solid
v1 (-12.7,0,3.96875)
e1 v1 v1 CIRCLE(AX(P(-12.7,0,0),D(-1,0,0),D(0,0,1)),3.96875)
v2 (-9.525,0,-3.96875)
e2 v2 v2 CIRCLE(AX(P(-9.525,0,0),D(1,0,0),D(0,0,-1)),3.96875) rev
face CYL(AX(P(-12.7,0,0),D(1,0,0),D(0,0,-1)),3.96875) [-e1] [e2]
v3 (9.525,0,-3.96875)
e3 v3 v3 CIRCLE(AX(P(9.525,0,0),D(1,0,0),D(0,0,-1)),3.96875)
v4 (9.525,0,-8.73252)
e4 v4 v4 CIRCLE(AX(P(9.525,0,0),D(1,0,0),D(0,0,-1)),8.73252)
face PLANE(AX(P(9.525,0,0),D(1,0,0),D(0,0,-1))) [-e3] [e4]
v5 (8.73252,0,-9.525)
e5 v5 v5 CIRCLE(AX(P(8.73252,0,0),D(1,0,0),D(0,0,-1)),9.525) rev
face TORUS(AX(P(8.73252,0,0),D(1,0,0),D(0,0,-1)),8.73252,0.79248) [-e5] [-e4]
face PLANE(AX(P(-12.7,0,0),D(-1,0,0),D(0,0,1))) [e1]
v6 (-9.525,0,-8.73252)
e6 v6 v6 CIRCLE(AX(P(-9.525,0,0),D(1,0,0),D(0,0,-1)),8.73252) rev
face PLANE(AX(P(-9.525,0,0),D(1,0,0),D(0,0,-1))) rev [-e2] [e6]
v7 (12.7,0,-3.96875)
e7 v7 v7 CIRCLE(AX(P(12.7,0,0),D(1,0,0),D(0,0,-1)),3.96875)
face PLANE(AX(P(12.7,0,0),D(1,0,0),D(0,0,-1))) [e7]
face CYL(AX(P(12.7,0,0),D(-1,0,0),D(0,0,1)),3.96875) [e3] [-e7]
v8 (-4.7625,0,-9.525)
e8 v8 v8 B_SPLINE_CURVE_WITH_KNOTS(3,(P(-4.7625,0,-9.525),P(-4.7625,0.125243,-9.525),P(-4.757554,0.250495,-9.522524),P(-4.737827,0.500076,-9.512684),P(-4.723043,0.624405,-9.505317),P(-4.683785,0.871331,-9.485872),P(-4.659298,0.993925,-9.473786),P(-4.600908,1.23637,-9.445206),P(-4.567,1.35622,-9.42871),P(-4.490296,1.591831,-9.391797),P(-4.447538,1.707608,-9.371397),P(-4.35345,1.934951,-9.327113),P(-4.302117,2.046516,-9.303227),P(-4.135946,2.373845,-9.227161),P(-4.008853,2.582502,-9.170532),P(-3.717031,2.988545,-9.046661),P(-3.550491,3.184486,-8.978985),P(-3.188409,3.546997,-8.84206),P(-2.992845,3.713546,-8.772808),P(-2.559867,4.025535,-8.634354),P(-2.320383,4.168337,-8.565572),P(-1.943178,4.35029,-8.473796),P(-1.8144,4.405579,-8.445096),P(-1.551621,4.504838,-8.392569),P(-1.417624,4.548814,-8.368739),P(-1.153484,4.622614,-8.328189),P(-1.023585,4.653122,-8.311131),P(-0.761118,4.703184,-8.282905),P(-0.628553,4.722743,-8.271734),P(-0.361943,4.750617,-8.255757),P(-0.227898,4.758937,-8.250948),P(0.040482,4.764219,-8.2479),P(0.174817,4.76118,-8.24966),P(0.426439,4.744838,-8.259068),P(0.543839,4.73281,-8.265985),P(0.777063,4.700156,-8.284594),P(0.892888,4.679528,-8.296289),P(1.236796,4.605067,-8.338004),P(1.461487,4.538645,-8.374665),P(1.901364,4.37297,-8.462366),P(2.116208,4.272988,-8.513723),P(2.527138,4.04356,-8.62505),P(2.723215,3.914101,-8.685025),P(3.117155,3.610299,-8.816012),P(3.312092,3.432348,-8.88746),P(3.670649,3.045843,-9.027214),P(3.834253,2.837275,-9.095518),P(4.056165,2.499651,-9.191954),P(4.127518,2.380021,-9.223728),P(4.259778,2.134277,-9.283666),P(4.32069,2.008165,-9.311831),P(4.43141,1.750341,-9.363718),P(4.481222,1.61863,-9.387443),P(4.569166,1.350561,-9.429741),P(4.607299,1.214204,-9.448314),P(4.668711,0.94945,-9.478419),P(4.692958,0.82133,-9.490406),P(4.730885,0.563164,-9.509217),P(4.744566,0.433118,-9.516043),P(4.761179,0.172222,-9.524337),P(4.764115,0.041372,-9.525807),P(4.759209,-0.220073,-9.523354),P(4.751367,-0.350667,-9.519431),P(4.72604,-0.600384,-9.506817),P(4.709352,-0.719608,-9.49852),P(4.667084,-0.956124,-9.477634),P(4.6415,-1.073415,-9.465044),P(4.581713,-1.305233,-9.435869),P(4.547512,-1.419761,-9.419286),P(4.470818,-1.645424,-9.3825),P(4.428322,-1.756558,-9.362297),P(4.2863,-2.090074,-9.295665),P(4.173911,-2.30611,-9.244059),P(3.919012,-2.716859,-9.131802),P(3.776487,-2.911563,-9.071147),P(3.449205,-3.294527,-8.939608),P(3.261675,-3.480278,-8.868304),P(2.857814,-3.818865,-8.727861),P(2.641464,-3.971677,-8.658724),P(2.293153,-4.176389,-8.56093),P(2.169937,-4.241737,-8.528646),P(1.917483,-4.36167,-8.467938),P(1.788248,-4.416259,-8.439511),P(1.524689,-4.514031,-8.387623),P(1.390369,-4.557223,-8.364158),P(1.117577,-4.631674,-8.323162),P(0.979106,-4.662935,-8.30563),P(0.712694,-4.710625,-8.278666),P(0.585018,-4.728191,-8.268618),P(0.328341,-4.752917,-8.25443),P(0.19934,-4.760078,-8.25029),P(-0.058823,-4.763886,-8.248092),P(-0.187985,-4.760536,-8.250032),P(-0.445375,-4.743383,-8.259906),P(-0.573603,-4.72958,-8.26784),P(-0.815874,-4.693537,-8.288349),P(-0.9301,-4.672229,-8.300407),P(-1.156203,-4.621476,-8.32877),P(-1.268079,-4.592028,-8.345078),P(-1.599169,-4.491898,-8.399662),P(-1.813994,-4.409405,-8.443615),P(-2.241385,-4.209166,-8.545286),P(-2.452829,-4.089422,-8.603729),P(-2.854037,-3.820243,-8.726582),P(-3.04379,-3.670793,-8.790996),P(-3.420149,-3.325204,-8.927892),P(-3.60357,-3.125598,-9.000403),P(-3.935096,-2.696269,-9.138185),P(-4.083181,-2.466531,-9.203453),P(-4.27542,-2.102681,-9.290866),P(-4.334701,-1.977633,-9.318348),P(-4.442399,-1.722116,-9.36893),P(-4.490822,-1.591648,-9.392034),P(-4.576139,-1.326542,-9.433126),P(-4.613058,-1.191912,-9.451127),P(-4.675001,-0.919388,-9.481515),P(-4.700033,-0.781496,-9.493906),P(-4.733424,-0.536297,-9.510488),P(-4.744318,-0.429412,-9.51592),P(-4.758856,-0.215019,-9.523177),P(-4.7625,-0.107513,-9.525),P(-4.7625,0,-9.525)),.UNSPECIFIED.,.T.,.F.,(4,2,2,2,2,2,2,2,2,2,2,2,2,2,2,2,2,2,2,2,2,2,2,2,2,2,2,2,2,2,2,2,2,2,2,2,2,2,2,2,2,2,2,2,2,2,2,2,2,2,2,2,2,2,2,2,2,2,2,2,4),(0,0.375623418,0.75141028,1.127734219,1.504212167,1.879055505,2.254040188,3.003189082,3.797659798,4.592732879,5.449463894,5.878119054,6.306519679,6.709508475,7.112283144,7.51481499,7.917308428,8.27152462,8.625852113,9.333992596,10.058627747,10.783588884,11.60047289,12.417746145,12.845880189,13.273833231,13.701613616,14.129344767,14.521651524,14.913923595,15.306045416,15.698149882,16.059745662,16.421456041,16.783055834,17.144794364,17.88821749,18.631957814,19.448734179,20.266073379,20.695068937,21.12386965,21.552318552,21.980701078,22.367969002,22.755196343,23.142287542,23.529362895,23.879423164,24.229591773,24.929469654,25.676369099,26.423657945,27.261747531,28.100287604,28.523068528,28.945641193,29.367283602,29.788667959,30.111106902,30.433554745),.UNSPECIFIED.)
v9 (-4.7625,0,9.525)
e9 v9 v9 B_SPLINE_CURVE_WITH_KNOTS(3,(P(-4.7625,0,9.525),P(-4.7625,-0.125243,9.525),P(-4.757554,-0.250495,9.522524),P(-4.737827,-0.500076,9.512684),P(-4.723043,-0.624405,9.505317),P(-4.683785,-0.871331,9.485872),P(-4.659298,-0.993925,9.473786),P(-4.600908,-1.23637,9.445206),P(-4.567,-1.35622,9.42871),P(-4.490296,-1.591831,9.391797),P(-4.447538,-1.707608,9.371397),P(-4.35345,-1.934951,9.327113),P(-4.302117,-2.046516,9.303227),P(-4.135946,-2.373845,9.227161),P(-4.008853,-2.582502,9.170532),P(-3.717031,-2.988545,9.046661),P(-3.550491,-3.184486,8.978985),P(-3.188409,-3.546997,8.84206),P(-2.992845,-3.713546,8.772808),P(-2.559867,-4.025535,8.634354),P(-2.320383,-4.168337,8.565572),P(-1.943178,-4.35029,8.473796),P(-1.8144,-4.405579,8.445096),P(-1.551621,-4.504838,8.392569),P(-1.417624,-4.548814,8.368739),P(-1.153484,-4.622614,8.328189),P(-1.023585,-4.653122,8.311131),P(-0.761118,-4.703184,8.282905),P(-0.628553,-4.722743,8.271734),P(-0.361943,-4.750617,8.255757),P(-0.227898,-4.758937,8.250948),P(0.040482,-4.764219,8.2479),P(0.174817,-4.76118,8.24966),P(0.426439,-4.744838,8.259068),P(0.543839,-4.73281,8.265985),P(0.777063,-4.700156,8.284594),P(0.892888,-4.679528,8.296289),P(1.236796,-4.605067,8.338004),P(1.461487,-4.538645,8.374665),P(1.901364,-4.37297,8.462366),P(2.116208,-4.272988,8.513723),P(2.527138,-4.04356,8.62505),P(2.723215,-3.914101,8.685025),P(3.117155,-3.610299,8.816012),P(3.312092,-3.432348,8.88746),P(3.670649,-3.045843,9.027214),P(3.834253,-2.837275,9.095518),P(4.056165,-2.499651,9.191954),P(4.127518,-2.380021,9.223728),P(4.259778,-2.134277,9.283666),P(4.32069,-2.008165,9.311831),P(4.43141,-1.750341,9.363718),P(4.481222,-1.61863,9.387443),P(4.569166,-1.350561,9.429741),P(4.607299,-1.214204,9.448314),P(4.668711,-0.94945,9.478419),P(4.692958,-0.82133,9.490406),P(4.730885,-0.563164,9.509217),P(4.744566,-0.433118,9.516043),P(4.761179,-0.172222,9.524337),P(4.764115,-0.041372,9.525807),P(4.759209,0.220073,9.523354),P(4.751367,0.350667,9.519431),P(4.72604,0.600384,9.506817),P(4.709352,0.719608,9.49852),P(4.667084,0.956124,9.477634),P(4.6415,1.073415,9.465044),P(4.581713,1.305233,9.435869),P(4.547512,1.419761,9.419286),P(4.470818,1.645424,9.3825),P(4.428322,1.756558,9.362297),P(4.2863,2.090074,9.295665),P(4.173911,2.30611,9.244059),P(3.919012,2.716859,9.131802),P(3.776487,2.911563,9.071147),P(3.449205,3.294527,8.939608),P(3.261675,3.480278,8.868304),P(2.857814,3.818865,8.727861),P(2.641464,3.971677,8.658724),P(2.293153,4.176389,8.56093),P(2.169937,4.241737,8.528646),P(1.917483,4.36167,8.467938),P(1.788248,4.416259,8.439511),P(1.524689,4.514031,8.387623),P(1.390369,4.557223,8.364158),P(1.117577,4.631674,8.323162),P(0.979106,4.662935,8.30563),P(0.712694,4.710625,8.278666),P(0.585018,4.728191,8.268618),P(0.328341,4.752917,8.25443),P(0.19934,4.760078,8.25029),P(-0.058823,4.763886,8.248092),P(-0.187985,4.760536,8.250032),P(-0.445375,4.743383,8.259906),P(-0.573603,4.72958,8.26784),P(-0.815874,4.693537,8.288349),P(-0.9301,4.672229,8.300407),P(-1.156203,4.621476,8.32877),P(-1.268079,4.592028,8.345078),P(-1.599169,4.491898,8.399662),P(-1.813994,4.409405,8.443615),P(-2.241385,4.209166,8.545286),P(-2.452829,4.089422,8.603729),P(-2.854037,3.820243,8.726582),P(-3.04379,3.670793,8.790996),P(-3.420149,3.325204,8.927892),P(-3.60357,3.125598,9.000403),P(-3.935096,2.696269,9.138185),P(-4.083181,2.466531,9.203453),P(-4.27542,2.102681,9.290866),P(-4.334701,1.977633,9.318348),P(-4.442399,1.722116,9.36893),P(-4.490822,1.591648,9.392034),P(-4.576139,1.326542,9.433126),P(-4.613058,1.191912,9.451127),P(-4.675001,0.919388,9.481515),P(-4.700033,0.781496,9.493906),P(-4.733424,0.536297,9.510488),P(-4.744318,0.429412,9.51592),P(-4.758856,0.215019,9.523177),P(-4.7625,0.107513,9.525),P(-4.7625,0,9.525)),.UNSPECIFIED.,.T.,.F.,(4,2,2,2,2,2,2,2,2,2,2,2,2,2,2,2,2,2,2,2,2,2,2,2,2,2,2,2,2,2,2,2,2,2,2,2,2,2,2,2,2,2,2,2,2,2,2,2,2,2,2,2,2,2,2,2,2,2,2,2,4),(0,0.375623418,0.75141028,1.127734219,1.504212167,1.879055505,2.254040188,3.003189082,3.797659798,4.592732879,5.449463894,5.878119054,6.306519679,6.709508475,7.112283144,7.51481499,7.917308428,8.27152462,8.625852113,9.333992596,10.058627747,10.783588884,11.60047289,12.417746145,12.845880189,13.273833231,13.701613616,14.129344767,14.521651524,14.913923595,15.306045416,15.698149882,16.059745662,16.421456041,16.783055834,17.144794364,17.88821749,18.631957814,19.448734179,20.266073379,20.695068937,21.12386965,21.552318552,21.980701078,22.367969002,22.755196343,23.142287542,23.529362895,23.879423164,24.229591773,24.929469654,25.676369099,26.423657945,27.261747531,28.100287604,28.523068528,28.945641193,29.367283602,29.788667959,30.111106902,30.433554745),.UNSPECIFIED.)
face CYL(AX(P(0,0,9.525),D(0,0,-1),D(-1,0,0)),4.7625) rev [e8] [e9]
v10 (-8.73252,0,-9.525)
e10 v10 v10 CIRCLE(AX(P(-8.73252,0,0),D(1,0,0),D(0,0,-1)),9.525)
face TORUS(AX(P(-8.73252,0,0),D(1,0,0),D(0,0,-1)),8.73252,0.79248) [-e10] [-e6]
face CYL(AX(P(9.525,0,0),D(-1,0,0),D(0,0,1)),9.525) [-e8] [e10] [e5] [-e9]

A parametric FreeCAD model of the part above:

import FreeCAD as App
import Part
import Sketcher

V = App.Vector
Q = App.Units.Quantity


def edges_at(feature, points):
    """Names of the edges that pass closest to the given points."""
    edges = feature.Shape.Edges
    near = lambda p: min(range(len(edges)), key=lambda i: edges[i].distToShape(Part.Vertex(*p))[0])
    return sorted({f"Edge{near(p) + 1}" for p in points})

doc = App.newDocument("Part")
body = doc.addObject("PartDesign::Body", "Body")

sketch1 = body.newObject("Sketcher::SketchObject", "Sketch")
sketch1.AttachmentSupport = (doc.getObject("YZ_Plane"), [""])
sketch1.MapMode = "FlatFace"
sketch1.addGeometry(Part.Circle(V(0, 0, 0), V(0, 0, 1), 10), False)
sketch1.addConstraint([
    Sketcher.Constraint("Coincident", 0, 3, -1, 1),
    Sketcher.Constraint("Diameter", 0, Q("0.75 in")),
])
pad1 = body.newObject("PartDesign::Pad", "Pad")
pad1.Profile = sketch1
pad1.Length = Q("0.75 in")
pad1.Midplane = True

sketch2 = body.newObject("Sketcher::SketchObject", "Sketch001")
sketch2.AttachmentSupport = (doc.getObject("YZ_Plane"), [""])
sketch2.MapMode = "FlatFace"
sketch2.AttachmentOffset = App.Placement(V(0, 0, 0.375 * 25.4), App.Rotation())
sketch2.addGeometry(Part.Circle(V(0, 0, 0), V(0, 0, 1), 4), False)
sketch2.addConstraint([
    Sketcher.Constraint("Coincident", 0, 3, -1, 1),
    Sketcher.Constraint("Diameter", 0, Q("0.3125 in")),
])
pad2 = body.newObject("PartDesign::Pad", "Pad001")
pad2.Profile = sketch2
pad2.Length = Q("0.125 in")
doc.recompute()

fillet = body.newObject("PartDesign::Fillet", "Fillet")
fillet.Base = (pad2, edges_at(pad2, [(-9.525, 0, -9.525), (9.525, 0, -9.525)]))
fillet.Radius = Q("0.0312 in")

sketch3 = body.newObject("Sketcher::SketchObject", "Sketch002")
sketch3.AttachmentSupport = (doc.getObject("YZ_Plane"), [""])
sketch3.MapMode = "FlatFace"
sketch3.AttachmentOffset = App.Placement(V(0, 0, -0.5 * 25.4), App.Rotation())
sketch3.addGeometry(Part.Circle(V(0, 0, 0), V(0, 0, 1), 4), False)
sketch3.addConstraint([
    Sketcher.Constraint("Coincident", 0, 3, -1, 1),
    Sketcher.Constraint("Diameter", 0, Q("0.3125 in")),
])
pad3 = body.newObject("PartDesign::Pad", "Pad002")
pad3.Profile = sketch3
pad3.Length = Q("0.125 in")

sketch4 = body.newObject("Sketcher::SketchObject", "Sketch003")
sketch4.AttachmentSupport = (doc.getObject("XY_Plane"), [""])
sketch4.MapMode = "FlatFace"
sketch4.addGeometry(Part.Circle(V(0, 0, 0), V(0, 0, 1), 4.8), False)
sketch4.addConstraint([
    Sketcher.Constraint("Coincident", 0, 3, -1, 1),
    Sketcher.Constraint("Diameter", 0, Q("0.375 in")),
])
pocket1 = body.newObject("PartDesign::Pocket", "Pocket")
pocket1.Profile = sketch4
pocket1.Type = "ThroughAll"
pocket1.Midplane = True

doc.recompute()
